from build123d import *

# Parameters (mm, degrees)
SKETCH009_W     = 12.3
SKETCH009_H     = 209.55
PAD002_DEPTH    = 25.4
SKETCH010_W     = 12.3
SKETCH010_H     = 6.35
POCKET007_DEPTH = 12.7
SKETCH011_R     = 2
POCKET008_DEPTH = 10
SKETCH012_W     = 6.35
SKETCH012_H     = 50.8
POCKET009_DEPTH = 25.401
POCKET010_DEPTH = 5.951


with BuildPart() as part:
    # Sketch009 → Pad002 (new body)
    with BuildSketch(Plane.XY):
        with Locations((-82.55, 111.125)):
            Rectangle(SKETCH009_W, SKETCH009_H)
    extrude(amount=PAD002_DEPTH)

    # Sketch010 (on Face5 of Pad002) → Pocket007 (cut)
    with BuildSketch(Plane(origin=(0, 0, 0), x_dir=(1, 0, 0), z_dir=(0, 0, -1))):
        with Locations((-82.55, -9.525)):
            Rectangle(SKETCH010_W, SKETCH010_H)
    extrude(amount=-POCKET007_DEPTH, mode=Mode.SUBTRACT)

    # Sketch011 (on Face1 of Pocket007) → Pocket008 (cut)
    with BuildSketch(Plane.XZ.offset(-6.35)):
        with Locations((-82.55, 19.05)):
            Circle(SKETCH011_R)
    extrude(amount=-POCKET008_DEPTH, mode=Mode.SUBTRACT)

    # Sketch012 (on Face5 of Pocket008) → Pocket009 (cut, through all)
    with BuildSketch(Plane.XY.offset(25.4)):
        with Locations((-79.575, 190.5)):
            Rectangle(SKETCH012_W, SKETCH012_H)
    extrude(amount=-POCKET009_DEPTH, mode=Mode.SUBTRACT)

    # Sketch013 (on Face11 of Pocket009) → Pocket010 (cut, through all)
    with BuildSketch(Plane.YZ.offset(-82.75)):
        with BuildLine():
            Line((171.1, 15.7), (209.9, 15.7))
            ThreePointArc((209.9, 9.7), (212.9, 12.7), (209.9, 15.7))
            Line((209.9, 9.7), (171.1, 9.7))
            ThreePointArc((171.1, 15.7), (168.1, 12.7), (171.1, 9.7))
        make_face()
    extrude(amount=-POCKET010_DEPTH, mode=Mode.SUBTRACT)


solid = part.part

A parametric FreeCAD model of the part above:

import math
import FreeCAD as App
import Part
import Sketcher
from FreeCAD import Vector

doc = App.newDocument("Part")
params = doc.addObject("Spreadsheet::Sheet", "Params")
for row, (alias, value) in enumerate([
    ("sketch1_width", "12.3 mm"),
    ("sketch1_height", "209.55 mm"),
    ("pad1_length", "25.4 mm"),
    ("sketch2_width", "12.3 mm"),
    ("sketch2_height", "6.35 mm"),
    ("pocket1_length", "12.7 mm"),
    ("sketch3_diameter", "4 mm"),
    ("pocket2_length", "10 mm"),
    ("sketch4_height", "50.8 mm"),
    ("sketch4_width", "6.35 mm"),
    ("sketch5_radius", "3 mm"),
    ("sketch5_width", "38.8 mm"),
], start=1):
    params.set(f"A{row}", alias)
    params.set(f"B{row}", "=" + value)
    params.setAlias(f"B{row}", alias)

body = doc.addObject("PartDesign::Body", "Body")

sketch1 = body.newObject("Sketcher::SketchObject", "Sketch")
sketch1.AttachmentSupport = (doc.getObject("XY_Plane"), [""])
sketch1.MapMode = "FlatFace"
sketch1.addGeometry(Part.LineSegment(Vector(-89, 216, 0), Vector(-89, 6, 0)), False)
sketch1.addGeometry(Part.LineSegment(Vector(-89, 6, 0), Vector(-76, 6, 0)), False)
sketch1.addGeometry(Part.LineSegment(Vector(-76, 6, 0), Vector(-76, 216, 0)), False)
sketch1.addGeometry(Part.LineSegment(Vector(-76, 216, 0), Vector(-89, 216, 0)), False)
sketch1.addConstraint(Sketcher.Constraint("Coincident", 0, 2, 1, 1))
sketch1.addConstraint(Sketcher.Constraint("Coincident", 1, 2, 2, 1))
sketch1.addConstraint(Sketcher.Constraint("Coincident", 2, 2, 3, 1))
sketch1.addConstraint(Sketcher.Constraint("Coincident", 3, 2, 0, 1))
sketch1.addConstraint(Sketcher.Constraint("Vertical", 0))
sketch1.addConstraint(Sketcher.Constraint("Horizontal", 1))
sketch1.addConstraint(Sketcher.Constraint("Vertical", 2))
sketch1.addConstraint(Sketcher.Constraint("Horizontal", 3))
sketch1.addConstraint(Sketcher.Constraint("DistanceX", 1, 1, 1, 2, 12.3))
sketch1.addConstraint(Sketcher.Constraint("DistanceY", 0, 2, 0, 1, 209.55))
sketch1.addConstraint(Sketcher.Constraint("DistanceX", 0, 2, -1, 1, 88.7))
sketch1.addConstraint(Sketcher.Constraint("DistanceY", -1, 1, 2, 2, 215.9))
sketch1.setExpression("Constraints[8]", "Params.sketch1_width")
sketch1.setExpression("Constraints[9]", "Params.sketch1_height")
pad1 = body.newObject("PartDesign::Pad", "Pad")
pad1.Profile = sketch1
pad1.setExpression("Length", "Params.pad1_length")

sketch2 = body.newObject("Sketcher::SketchObject", "Sketch001")
sketch2.AttachmentSupport = (doc.getObject("XY_Plane"), [""])
sketch2.MapMode = "FlatFace"
sketch2.addGeometry(Part.LineSegment(Vector(-89, 6, 0), Vector(-89, 13, 0)), False)
sketch2.addGeometry(Part.LineSegment(Vector(-89, 13, 0), Vector(-76, 13, 0)), False)
sketch2.addGeometry(Part.LineSegment(Vector(-76, 13, 0), Vector(-76, 6, 0)), False)
sketch2.addGeometry(Part.LineSegment(Vector(-76, 6, 0), Vector(-89, 6, 0)), False)
sketch2.addConstraint(Sketcher.Constraint("Coincident", 0, 2, 1, 1))
sketch2.addConstraint(Sketcher.Constraint("Coincident", 1, 2, 2, 1))
sketch2.addConstraint(Sketcher.Constraint("Coincident", 2, 2, 3, 1))
sketch2.addConstraint(Sketcher.Constraint("Coincident", 3, 2, 0, 1))
sketch2.addConstraint(Sketcher.Constraint("Vertical", 0))
sketch2.addConstraint(Sketcher.Constraint("Horizontal", 1))
sketch2.addConstraint(Sketcher.Constraint("Vertical", 2))
sketch2.addConstraint(Sketcher.Constraint("Horizontal", 3))
sketch2.addConstraint(Sketcher.Constraint("DistanceX", 1, 1, 1, 2, 12.3))
sketch2.addConstraint(Sketcher.Constraint("DistanceY", 0, 1, 0, 2, 6.35))
sketch2.addConstraint(Sketcher.Constraint("DistanceX", 0, 2, -1, 1, 88.7))
sketch2.addConstraint(Sketcher.Constraint("DistanceY", -1, 1, 0, 2, 12.7))
sketch2.setExpression("Constraints[8]", "Params.sketch2_width")
sketch2.setExpression("Constraints[9]", "Params.sketch2_height")
pocket1 = body.newObject("PartDesign::Pocket", "Pocket")
pocket1.Profile = sketch2
pocket1.setExpression("Length", "Params.pocket1_length")
pocket1.Reversed = True

sketch3 = body.newObject("Sketcher::SketchObject", "Sketch002")
sketch3.AttachmentSupport = (doc.getObject("XZ_Plane"), [""])
sketch3.MapMode = "FlatFace"
sketch3.AttachmentOffset = App.Placement(Vector(0, 0, -6.35), App.Rotation())
sketch3.addGeometry(Part.Circle(Vector(-82.5, 19.1, 0), Vector(0, 0, 1), 2), False)
sketch3.addConstraint(Sketcher.Constraint("Diameter", 0, 4.0))
sketch3.addConstraint(Sketcher.Constraint("DistanceX", 0, 3, -1, 1, 82.55))
sketch3.addConstraint(Sketcher.Constraint("DistanceY", -1, 1, 0, 3, 19.05))
sketch3.setExpression("Constraints[0]", "Params.sketch3_diameter")
pocket2 = body.newObject("PartDesign::Pocket", "Pocket001")
pocket2.Profile = sketch3
pocket2.setExpression("Length", "Params.pocket2_length")

sketch4 = body.newObject("Sketcher::SketchObject", "Sketch003")
sketch4.AttachmentSupport = (doc.getObject("XY_Plane"), [""])
sketch4.MapMode = "FlatFace"
sketch4.AttachmentOffset = App.Placement(Vector(0, 0, 25.4), App.Rotation())
sketch4.addGeometry(Part.LineSegment(Vector(-83, 216, 0), Vector(-83, 165, 0)), False)
sketch4.addGeometry(Part.LineSegment(Vector(-83, 165, 0), Vector(-76, 165, 0)), False)
sketch4.addGeometry(Part.LineSegment(Vector(-76, 165, 0), Vector(-76, 216, 0)), False)
sketch4.addGeometry(Part.LineSegment(Vector(-76, 216, 0), Vector(-83, 216, 0)), False)
sketch4.addConstraint(Sketcher.Constraint("Coincident", 0, 2, 1, 1))
sketch4.addConstraint(Sketcher.Constraint("Coincident", 1, 2, 2, 1))
sketch4.addConstraint(Sketcher.Constraint("Coincident", 2, 2, 3, 1))
sketch4.addConstraint(Sketcher.Constraint("Coincident", 3, 2, 0, 1))
sketch4.addConstraint(Sketcher.Constraint("Vertical", 0))
sketch4.addConstraint(Sketcher.Constraint("Horizontal", 1))
sketch4.addConstraint(Sketcher.Constraint("Vertical", 2))
sketch4.addConstraint(Sketcher.Constraint("Horizontal", 3))
sketch4.addConstraint(Sketcher.Constraint("DistanceY", 0, 2, 0, 1, 50.8))
sketch4.addConstraint(Sketcher.Constraint("DistanceX", 1, 1, 1, 2, 6.35))
sketch4.addConstraint(Sketcher.Constraint("DistanceY", -1, 1, 0, 2, 165.1))
sketch4.addConstraint(Sketcher.Constraint("DistanceX", 1, 2, -1, 1, 76.4))
sketch4.setExpression("Constraints[8]", "Params.sketch4_height")
sketch4.setExpression("Constraints[9]", "Params.sketch4_width")
pocket3 = body.newObject("PartDesign::Pocket", "Pocket002")
pocket3.Profile = sketch4
pocket3.Type = "ThroughAll"

sketch5 = body.newObject("Sketcher::SketchObject", "Sketch004")
sketch5.AttachmentSupport = (doc.getObject("YZ_Plane"), [""])
sketch5.MapMode = "FlatFace"
sketch5.AttachmentOffset = App.Placement(Vector(0, 0, -82.75), App.Rotation())
sketch5.addGeometry(Part.LineSegment(Vector(209.9, 15.7, 0), Vector(171.1, 15.7, 0)), False)
sketch5.addGeometry(Part.ArcOfCircle(Part.Circle(Vector(171.1, 12.7, 0), Vector(0, 0, 1), 3), math.radians(90), math.radians(270)), False)
sketch5.addGeometry(Part.LineSegment(Vector(171.1, 9.7, 0), Vector(209.9, 9.7, 0)), False)
sketch5.addGeometry(Part.ArcOfCircle(Part.Circle(Vector(209.9, 12.7, 0), Vector(0, 0, 1), 3), math.radians(-90), math.radians(90)), False)
sketch5.addConstraint(Sketcher.Constraint("Tangent", 0, 2, 1, 1))
sketch5.addConstraint(Sketcher.Constraint("Tangent", 1, 2, 2, 1))
sketch5.addConstraint(Sketcher.Constraint("Tangent", 2, 2, 3, 1))
sketch5.addConstraint(Sketcher.Constraint("Tangent", 3, 2, 0, 1))
sketch5.addConstraint(Sketcher.Constraint("Horizontal", 0))
sketch5.addConstraint(Sketcher.Constraint("Horizontal", 2))
sketch5.addConstraint(Sketcher.Constraint("Radius", 1, 3.0))
sketch5.addConstraint(Sketcher.Constraint("DistanceX", 0, 2, 0, 1, 38.8))
sketch5.addConstraint(Sketcher.Constraint("DistanceX", -1, 1, 1, 3, 171.1))
sketch5.addConstraint(Sketcher.Constraint("DistanceY", -1, 1, 1, 3, 12.7))
sketch5.setExpression("Constraints[6]", "Params.sketch5_radius")
sketch5.setExpression("Constraints[7]", "Params.sketch5_width")
pocket4 = body.newObject("PartDesign::Pocket", "Pocket003")
pocket4.Profile = sketch5
pocket4.Type = "ThroughAll"

doc.recompute()
